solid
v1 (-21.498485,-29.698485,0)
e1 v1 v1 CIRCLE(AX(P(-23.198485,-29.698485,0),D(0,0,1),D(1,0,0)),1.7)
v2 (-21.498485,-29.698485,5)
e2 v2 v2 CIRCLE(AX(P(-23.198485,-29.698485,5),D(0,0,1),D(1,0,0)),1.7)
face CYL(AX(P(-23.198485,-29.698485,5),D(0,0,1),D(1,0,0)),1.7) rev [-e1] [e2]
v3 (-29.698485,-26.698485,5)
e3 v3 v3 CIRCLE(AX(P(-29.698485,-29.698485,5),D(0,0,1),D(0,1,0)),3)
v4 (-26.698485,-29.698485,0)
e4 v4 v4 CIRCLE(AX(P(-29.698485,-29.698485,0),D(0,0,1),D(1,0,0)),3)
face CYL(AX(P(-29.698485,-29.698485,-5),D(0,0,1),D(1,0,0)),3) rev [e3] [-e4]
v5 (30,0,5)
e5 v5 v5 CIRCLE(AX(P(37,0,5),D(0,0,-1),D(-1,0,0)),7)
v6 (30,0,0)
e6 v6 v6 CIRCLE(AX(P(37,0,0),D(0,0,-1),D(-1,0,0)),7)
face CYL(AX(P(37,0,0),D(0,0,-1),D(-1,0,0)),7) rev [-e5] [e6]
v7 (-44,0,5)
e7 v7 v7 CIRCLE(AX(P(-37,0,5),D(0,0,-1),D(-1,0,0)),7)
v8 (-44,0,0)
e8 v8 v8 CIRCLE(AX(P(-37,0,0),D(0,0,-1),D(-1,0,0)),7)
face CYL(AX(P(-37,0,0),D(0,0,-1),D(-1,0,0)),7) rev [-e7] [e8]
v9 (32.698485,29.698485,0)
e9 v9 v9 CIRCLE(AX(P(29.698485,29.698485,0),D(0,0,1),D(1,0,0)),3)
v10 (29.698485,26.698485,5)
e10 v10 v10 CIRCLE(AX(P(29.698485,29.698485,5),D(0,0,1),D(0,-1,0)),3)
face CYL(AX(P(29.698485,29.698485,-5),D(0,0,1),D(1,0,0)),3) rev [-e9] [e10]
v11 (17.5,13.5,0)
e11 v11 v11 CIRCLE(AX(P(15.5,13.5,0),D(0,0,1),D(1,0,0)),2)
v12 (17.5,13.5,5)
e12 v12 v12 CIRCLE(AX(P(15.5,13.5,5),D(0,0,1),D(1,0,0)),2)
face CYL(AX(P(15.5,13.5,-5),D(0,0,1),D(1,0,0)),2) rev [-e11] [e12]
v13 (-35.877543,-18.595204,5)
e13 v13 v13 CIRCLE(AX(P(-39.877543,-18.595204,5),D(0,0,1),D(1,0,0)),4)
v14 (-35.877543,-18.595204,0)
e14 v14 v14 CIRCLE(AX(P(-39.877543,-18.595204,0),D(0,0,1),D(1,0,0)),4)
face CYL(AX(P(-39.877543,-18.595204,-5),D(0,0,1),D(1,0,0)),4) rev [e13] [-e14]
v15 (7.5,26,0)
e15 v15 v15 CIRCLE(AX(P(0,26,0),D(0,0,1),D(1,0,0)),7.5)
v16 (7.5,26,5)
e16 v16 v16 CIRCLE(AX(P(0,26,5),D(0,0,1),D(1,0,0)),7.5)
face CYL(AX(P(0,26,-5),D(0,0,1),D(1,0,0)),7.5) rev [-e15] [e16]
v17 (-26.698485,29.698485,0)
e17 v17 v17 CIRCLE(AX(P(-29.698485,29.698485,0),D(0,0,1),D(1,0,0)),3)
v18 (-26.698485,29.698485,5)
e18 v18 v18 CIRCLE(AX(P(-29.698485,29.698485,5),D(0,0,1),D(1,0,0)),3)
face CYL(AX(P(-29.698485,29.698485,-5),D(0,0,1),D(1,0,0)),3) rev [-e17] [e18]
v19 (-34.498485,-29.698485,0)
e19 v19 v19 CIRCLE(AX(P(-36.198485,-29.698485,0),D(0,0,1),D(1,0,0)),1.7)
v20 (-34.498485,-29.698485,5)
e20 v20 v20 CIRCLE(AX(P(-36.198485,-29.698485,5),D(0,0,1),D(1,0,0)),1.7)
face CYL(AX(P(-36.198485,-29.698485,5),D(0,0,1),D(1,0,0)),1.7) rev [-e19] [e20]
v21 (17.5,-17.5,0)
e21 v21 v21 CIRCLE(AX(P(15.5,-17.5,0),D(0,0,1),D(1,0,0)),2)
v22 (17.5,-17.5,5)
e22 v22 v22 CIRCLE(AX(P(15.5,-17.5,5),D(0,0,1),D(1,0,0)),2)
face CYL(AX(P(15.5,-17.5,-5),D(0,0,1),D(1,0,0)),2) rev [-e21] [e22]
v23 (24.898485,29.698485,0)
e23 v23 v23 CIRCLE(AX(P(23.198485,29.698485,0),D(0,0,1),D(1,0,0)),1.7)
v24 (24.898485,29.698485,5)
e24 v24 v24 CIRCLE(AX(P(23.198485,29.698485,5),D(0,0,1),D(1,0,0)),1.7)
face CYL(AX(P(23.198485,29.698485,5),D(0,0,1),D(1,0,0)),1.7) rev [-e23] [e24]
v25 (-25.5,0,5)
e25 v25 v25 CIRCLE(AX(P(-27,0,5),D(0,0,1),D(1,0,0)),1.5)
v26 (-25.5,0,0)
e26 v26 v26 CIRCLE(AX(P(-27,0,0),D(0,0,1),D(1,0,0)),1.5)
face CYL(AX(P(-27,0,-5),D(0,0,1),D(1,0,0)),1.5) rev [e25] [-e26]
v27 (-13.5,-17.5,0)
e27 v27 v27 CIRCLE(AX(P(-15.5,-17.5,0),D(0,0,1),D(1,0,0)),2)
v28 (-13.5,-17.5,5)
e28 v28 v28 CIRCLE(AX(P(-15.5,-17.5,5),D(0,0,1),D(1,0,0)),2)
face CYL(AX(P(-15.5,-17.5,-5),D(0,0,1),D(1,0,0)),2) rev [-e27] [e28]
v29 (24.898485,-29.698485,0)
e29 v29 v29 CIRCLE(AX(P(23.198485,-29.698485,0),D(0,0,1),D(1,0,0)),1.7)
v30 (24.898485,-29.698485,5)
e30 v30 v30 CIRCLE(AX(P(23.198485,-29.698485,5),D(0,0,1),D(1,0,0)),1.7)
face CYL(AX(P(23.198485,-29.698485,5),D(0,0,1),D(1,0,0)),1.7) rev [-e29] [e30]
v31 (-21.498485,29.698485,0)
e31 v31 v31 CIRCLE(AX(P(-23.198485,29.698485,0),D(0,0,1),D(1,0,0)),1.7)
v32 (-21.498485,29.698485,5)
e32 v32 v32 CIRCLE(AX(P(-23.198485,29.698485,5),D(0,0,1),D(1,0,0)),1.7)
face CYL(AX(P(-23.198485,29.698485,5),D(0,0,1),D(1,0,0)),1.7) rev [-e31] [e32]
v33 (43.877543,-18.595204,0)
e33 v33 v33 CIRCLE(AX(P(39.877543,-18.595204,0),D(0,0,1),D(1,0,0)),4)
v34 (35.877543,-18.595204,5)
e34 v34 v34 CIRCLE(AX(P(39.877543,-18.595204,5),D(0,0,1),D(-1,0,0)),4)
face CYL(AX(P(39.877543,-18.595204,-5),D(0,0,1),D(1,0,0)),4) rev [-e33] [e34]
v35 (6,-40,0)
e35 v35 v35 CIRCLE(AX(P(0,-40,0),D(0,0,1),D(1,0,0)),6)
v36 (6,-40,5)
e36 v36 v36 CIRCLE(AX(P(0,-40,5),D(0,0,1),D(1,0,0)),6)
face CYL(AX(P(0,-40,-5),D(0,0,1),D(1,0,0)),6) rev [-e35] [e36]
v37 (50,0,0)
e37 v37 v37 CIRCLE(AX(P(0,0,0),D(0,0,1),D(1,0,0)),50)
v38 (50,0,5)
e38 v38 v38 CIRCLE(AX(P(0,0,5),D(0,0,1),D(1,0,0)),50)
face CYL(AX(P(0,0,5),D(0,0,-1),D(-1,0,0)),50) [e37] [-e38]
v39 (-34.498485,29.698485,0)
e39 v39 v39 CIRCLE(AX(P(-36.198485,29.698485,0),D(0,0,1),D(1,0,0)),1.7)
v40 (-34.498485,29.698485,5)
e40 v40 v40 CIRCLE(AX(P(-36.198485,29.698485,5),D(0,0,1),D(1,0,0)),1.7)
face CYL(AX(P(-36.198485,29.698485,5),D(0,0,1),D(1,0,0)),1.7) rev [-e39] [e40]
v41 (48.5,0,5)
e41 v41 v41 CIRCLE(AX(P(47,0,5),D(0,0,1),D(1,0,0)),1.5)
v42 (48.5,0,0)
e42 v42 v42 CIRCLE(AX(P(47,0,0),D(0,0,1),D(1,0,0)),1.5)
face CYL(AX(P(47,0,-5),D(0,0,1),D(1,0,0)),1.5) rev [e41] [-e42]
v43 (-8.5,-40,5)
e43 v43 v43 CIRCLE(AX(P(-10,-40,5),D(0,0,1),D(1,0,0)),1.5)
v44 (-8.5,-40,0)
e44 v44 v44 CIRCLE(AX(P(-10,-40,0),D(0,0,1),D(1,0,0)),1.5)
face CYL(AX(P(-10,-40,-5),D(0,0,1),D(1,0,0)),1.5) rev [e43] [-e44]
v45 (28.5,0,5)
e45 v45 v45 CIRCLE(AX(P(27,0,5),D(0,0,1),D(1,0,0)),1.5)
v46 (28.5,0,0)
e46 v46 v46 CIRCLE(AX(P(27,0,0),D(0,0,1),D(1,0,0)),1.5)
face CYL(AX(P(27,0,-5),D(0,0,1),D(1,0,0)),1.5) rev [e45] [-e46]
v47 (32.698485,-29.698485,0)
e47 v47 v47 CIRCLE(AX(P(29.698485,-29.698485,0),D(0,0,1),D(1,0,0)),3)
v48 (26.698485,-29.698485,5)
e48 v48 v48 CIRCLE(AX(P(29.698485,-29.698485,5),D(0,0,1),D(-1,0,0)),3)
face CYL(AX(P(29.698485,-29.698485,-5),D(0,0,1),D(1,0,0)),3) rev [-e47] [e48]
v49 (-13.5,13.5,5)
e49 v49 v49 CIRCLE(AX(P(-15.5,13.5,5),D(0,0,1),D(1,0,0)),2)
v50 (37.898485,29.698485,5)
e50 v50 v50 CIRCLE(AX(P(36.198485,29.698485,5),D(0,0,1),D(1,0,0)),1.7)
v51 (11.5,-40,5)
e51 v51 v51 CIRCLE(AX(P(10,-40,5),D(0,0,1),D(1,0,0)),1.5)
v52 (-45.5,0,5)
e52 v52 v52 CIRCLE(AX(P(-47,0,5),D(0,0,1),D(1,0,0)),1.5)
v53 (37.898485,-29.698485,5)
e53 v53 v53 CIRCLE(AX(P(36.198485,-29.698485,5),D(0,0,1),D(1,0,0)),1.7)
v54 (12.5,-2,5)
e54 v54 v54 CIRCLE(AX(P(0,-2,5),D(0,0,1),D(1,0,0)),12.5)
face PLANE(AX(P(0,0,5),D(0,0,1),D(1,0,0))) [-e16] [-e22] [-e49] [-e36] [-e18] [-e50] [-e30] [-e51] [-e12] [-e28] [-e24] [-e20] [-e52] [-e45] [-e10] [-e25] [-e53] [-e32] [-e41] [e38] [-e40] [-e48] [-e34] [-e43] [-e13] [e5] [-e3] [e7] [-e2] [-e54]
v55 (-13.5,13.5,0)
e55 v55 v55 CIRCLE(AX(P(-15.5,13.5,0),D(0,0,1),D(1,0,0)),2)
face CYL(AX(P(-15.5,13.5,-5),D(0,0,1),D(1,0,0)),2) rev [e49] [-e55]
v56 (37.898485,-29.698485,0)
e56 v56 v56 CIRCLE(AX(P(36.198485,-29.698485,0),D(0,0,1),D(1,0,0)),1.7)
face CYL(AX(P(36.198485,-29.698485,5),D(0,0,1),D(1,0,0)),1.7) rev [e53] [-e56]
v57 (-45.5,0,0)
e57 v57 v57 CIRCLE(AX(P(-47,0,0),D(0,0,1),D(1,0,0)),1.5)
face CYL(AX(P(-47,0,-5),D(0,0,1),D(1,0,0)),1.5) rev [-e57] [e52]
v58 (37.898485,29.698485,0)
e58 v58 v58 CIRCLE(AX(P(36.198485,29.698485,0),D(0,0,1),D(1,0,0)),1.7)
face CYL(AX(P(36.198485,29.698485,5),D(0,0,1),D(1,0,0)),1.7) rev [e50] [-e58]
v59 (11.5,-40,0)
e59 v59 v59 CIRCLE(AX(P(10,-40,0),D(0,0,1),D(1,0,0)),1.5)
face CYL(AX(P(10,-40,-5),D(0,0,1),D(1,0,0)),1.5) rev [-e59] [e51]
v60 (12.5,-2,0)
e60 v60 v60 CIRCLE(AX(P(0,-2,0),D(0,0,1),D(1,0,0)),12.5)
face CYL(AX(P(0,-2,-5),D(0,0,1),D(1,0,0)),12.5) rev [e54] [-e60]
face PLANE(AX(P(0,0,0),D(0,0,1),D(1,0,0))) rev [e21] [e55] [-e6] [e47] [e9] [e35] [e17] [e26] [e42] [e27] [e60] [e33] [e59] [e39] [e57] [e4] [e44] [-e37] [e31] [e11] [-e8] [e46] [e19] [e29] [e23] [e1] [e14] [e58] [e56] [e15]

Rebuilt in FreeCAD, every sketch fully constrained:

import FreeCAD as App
import Part
import Sketcher

V = App.Vector

doc = App.newDocument("Part")
body = doc.addObject("PartDesign::Body", "Body")

sketch1 = body.newObject("Sketcher::SketchObject", "Sketch")
sketch1.AttachmentSupport = (doc.getObject("XY_Plane"), [""])
sketch1.MapMode = "FlatFace"
sketch1.addGeometry(Part.Circle(V(0, 0, 0), V(0, 0, 1), 50), False)
sketch1.addConstraint(Sketcher.Constraint("Coincident", 0, 3, -1, 1))
sketch1.addConstraint(Sketcher.Constraint("Diameter", 0, 100.0))
pad1 = body.newObject("PartDesign::Pad", "Pad")
pad1.Profile = sketch1
pad1.Length = 5

sketch2 = body.newObject("Sketcher::SketchObject", "Sketch001")
sketch2.AttachmentSupport = (doc.getObject("XY_Plane"), [""])
sketch2.MapMode = "FlatFace"
sketch2.addGeometry(Part.Circle(V(-37, 0, 0), V(0, 0, 1), 7), False)
sketch2.addGeometry(Part.Circle(V(37, 0, 0), V(0, 0, 1), 7), False)
sketch2.addConstraint(Sketcher.Constraint("Equal", 0, 1))
sketch2.addConstraint(Sketcher.Constraint("Symmetric", 0, 3, 1, 3, -1, 1))
sketch2.addConstraint(Sketcher.Constraint("PointOnObject", 0, 3, -1))
sketch2.addConstraint(Sketcher.Constraint("Diameter", 0, 14.0))
sketch2.addConstraint(Sketcher.Constraint("DistanceX", 0, 3, -1, 1, 37.0))
doc.recompute()
hole = body.newObject("PartDesign::Hole", "Hole")
hole.Profile = sketch2
hole.ThreadType = "None"
hole.Diameter = 14
hole.DepthType = "ThroughAll"
hole.Reversed = True

sketch3 = body.newObject("Sketcher::SketchObject", "Sketch002")
sketch3.AttachmentSupport = (doc.getObject("XY_Plane"), [""])
sketch3.MapMode = "FlatFace"
sketch3.AttachmentOffset = App.Placement(V(0, 0, 5), App.Rotation())
sketch3.addGeometry(Part.Circle(V(0, 26, 0), V(0, 0, 1), 8), False)
sketch3.addConstraint(Sketcher.Constraint("PointOnObject", 0, 3, -2))
sketch3.addConstraint(Sketcher.Constraint("Diameter", 0, 15.0))
sketch3.addConstraint(Sketcher.Constraint("DistanceY", -1, 1, 0, 3, 26.0))
pocket1 = body.newObject("PartDesign::Pocket", "Pocket")
pocket1.Profile = sketch3
pocket1.Length = 10

sketch4 = body.newObject("Sketcher::SketchObject", "Sketch003")
sketch4.AttachmentSupport = (doc.getObject("XY_Plane"), [""])
sketch4.MapMode = "FlatFace"
sketch4.AttachmentOffset = App.Placement(V(0, 0, 5), App.Rotation())
sketch4.addGeometry(Part.Circle(V(0, -2, 0), V(0, 0, 1), 12.5), False)
sketch4.addGeometry(Part.Circle(V(-15.5, 13.5, 0), V(0, 0, 1), 2), False)
sketch4.addGeometry(Part.Circle(V(15.5, 13.5, 0), V(0, 0, 1), 2), False)
sketch4.addGeometry(Part.Circle(V(15.5, -17.5, 0), V(0, 0, 1), 2), False)
sketch4.addGeometry(Part.Circle(V(-15.5, -17.5, 0), V(0, 0, 1), 2), False)
sketch4.addConstraint(Sketcher.Constraint("Equal", 1, 2))
sketch4.addConstraint(Sketcher.Constraint("Equal", 2, 3))
sketch4.addConstraint(Sketcher.Constraint("Equal", 3, 4))
sketch4.addConstraint(Sketcher.Constraint("Symmetric", 1, 3, 2, 3, -2))
sketch4.addConstraint(Sketcher.Constraint("Symmetric", 3, 3, 4, 3, -2))
sketch4.addConstraint(Sketcher.Constraint("PointOnObject", 0, 3, -2))
sketch4.addConstraint(Sketcher.Constraint("Vertical", 2, 3, 3, 3))
sketch4.addConstraint(Sketcher.Constraint("Diameter", 0, 25.0))
sketch4.addConstraint(Sketcher.Constraint("Diameter", 1, 4.0))
sketch4.addConstraint(Sketcher.Constraint("DistanceY", 0, 3, -1, 1, 2.0))
sketch4.addConstraint(Sketcher.Constraint("DistanceX", 1, 3, 2, 3, 31.0))
sketch4.addConstraint(Sketcher.Constraint("DistanceY", 3, 3, 2, 3, 31.0))
sketch4.addConstraint(Sketcher.Constraint("DistanceY", -1, 1, 1, 3, 13.5))
pocket2 = body.newObject("PartDesign::Pocket", "Pocket001")
pocket2.Profile = sketch4
pocket2.Length = 10

sketch5 = body.newObject("Sketcher::SketchObject", "Sketch004")
sketch5.AttachmentSupport = (doc.getObject("XY_Plane"), [""])
sketch5.MapMode = "FlatFace"
sketch5.AttachmentOffset = App.Placement(V(0, 0, 5), App.Rotation())
sketch5.addGeometry(Part.Circle(V(-29.7, 29.7, 0), V(0, 0, 1), 3), False)
sketch5.addConstraint(Sketcher.Constraint("Diameter", 0, 6.0))
sketch5.addConstraint(Sketcher.Constraint("DistanceX", 0, 3, -1, 1, 29.698485))
sketch5.addConstraint(Sketcher.Constraint("DistanceY", -1, 1, 0, 3, 29.698485))
pocket3 = body.newObject("PartDesign::Pocket", "Pocket002")
pocket3.Profile = sketch5
pocket3.Length = 10
doc.recompute()

polarpattern = body.newObject("PartDesign::PolarPattern", "PolarPattern")
polarpattern.Originals = [pocket3]
polarpattern.Axis = (doc.getObject("Z_Axis"), [""])
polarpattern.Angle = 360
polarpattern.Occurrences = 4
body.Tip = polarpattern

sketch6 = body.newObject("Sketcher::SketchObject", "Sketch005")
sketch6.AttachmentSupport = (doc.getObject("XY_Plane"), [""])
sketch6.MapMode = "FlatFace"
sketch6.AttachmentOffset = App.Placement(V(0, 0, 5), App.Rotation())
sketch6.addGeometry(Part.Circle(V(-47, 0, 0), V(0, 0, 1), 1.5), False)
sketch6.addGeometry(Part.Circle(V(-27, 0, 0), V(0, 0, 1), 1.5), False)
sketch6.addGeometry(Part.Circle(V(27, 0, 0), V(0, 0, 1), 1.5), False)
sketch6.addGeometry(Part.Circle(V(47, 0, 0), V(0, 0, 1), 1.5), False)
sketch6.addGeometry(Part.Circle(V(-10, -40, 0), V(0, 0, 1), 1.5), False)
sketch6.addGeometry(Part.Circle(V(10, -40, 0), V(0, 0, 1), 1.5), False)
sketch6.addGeometry(Part.Circle(V(0, -40, 0), V(0, 0, 1), 6), False)
sketch6.addConstraint(Sketcher.Constraint("Equal", 0, 1))
sketch6.addConstraint(Sketcher.Constraint("Equal", 1, 2))
sketch6.addConstraint(Sketcher.Constraint("Equal", 2, 3))
sketch6.addConstraint(Sketcher.Constraint("Equal", 3, 4))
sketch6.addConstraint(Sketcher.Constraint("Equal", 4, 5))
sketch6.addConstraint(Sketcher.Constraint("Symmetric", 1, 3, 2, 3, -1, 1))
sketch6.addConstraint(Sketcher.Constraint("Symmetric", 0, 3, 3, 3, -1, 1))
sketch6.addConstraint(Sketcher.Constraint("Symmetric", 4, 3, 5, 3, -2))
sketch6.addConstraint(Sketcher.Constraint("PointOnObject", 0, 3, -1))
sketch6.addConstraint(Sketcher.Constraint("PointOnObject", 1, 3, -1))
sketch6.addConstraint(Sketcher.Constraint("PointOnObject", 6, 3, -2))
sketch6.addConstraint(Sketcher.Constraint("Horizontal", 5, 3, 6, 3))
sketch6.addConstraint(Sketcher.Constraint("Diameter", 0, 3.0))
sketch6.addConstraint(Sketcher.Constraint("Diameter", 6, 12.0))
sketch6.addConstraint(Sketcher.Constraint("DistanceX", 0, 3, -1, 1, 47.0))
sketch6.addConstraint(Sketcher.Constraint("DistanceX", 1, 3, -1, 1, 27.0))
sketch6.addConstraint(Sketcher.Constraint("DistanceX", 4, 3, -1, 1, 10.0))
sketch6.addConstraint(Sketcher.Constraint("DistanceY", 4, 3, -1, 1, 40.0))
pocket4 = body.newObject("PartDesign::Pocket", "Pocket003")
pocket4.Profile = sketch6
pocket4.Length = 10

sketch7 = body.newObject("Sketcher::SketchObject", "Sketch006")
sketch7.AttachmentSupport = (doc.getObject("XY_Plane"), [""])
sketch7.MapMode = "FlatFace"
sketch7.AttachmentOffset = App.Placement(V(0, 0, 5), App.Rotation())
sketch7.addGeometry(Part.Circle(V(-39.9, -18.6, 0), V(0, 0, 1), 4), False)
sketch7.addGeometry(Part.Circle(V(39.9, -18.6, 0), V(0, 0, 1), 4), False)
sketch7.addConstraint(Sketcher.Constraint("Equal", 0, 1))
sketch7.addConstraint(Sketcher.Constraint("Symmetric", 0, 3, 1, 3, -2))
sketch7.addConstraint(Sketcher.Constraint("Diameter", 0, 8.0))
sketch7.addConstraint(Sketcher.Constraint("DistanceX", 0, 3, -1, 1, 39.877543))
sketch7.addConstraint(Sketcher.Constraint("DistanceY", 0, 3, -1, 1, 18.595204))
pocket5 = body.newObject("PartDesign::Pocket", "Pocket004")
pocket5.Profile = sketch7
pocket5.Length = 10

sketch8 = body.newObject("Sketcher::SketchObject", "Sketch007")
sketch8.AttachmentSupport = (doc.getObject("XY_Plane"), [""])
sketch8.MapMode = "FlatFace"
sketch8.AttachmentOffset = App.Placement(V(0, 0, 5), App.Rotation())
sketch8.addGeometry(Part.Circle(V(-36.2, -29.7, 0), V(0, 0, 1), 1.7), False)
sketch8.addGeometry(Part.Circle(V(-23.2, -29.7, 0), V(0, 0, 1), 1.7), False)
sketch8.addConstraint(Sketcher.Constraint("Equal", 0, 1))
sketch8.addConstraint(Sketcher.Constraint("Horizontal", 0, 3, 1, 3))
sketch8.addConstraint(Sketcher.Constraint("Diameter", 0, 3.4))
sketch8.addConstraint(Sketcher.Constraint("DistanceX", 0, 3, 1, 3, 13.0))
sketch8.addConstraint(Sketcher.Constraint("DistanceX", 0, 3, -1, 1, 36.198485))
sketch8.addConstraint(Sketcher.Constraint("DistanceY", 0, 3, -1, 1, 29.698485))
doc.recompute()
hole2 = body.newObject("PartDesign::Hole", "Hole001")
hole2.Profile = sketch8
hole2.ThreadType = "None"
hole2.Diameter = 3.4
hole2.DepthType = "ThroughAll"
doc.recompute()

mirrored = body.newObject("PartDesign::Mirrored", "Mirrored")
mirrored.Originals = [hole2]
mirrored.MirrorPlane = (doc.getObject("XZ_Plane"), [""])
body.Tip = mirrored
doc.recompute()

mirrored2 = body.newObject("PartDesign::Mirrored", "Mirrored001")
mirrored2.Originals = [hole2]
mirrored2.MirrorPlane = (doc.getObject("YZ_Plane"), [""])
body.Tip = mirrored2

sketch9 = body.newObject("Sketcher::SketchObject", "Sketch008")
sketch9.AttachmentSupport = (doc.getObject("XY_Plane"), [""])
sketch9.MapMode = "FlatFace"
sketch9.AttachmentOffset = App.Placement(V(0, 0, 5), App.Rotation())
sketch9.addGeometry(Part.Circle(V(36.2, 29.7, 0), V(0, 0, 1), 1.7), False)
sketch9.addGeometry(Part.Circle(V(23.2, 29.7, 0), V(0, 0, 1), 1.7), False)
sketch9.addConstraint(Sketcher.Constraint("Equal", 0, 1))
sketch9.addConstraint(Sketcher.Constraint("Horizontal", 0, 3, 1, 3))
sketch9.addConstraint(Sketcher.Constraint("Diameter", 0, 3.4))
sketch9.addConstraint(Sketcher.Constraint("DistanceX", 1, 3, 0, 3, 13.0))
sketch9.addConstraint(Sketcher.Constraint("DistanceX", -1, 1, 0, 3, 36.198485))
sketch9.addConstraint(Sketcher.Constraint("DistanceY", -1, 1, 0, 3, 29.698485))
doc.recompute()
hole3 = body.newObject("PartDesign::Hole", "Hole002")
hole3.Profile = sketch9
hole3.ThreadType = "None"
hole3.Diameter = 3.4
hole3.DepthType = "ThroughAll"

doc.recompute()
